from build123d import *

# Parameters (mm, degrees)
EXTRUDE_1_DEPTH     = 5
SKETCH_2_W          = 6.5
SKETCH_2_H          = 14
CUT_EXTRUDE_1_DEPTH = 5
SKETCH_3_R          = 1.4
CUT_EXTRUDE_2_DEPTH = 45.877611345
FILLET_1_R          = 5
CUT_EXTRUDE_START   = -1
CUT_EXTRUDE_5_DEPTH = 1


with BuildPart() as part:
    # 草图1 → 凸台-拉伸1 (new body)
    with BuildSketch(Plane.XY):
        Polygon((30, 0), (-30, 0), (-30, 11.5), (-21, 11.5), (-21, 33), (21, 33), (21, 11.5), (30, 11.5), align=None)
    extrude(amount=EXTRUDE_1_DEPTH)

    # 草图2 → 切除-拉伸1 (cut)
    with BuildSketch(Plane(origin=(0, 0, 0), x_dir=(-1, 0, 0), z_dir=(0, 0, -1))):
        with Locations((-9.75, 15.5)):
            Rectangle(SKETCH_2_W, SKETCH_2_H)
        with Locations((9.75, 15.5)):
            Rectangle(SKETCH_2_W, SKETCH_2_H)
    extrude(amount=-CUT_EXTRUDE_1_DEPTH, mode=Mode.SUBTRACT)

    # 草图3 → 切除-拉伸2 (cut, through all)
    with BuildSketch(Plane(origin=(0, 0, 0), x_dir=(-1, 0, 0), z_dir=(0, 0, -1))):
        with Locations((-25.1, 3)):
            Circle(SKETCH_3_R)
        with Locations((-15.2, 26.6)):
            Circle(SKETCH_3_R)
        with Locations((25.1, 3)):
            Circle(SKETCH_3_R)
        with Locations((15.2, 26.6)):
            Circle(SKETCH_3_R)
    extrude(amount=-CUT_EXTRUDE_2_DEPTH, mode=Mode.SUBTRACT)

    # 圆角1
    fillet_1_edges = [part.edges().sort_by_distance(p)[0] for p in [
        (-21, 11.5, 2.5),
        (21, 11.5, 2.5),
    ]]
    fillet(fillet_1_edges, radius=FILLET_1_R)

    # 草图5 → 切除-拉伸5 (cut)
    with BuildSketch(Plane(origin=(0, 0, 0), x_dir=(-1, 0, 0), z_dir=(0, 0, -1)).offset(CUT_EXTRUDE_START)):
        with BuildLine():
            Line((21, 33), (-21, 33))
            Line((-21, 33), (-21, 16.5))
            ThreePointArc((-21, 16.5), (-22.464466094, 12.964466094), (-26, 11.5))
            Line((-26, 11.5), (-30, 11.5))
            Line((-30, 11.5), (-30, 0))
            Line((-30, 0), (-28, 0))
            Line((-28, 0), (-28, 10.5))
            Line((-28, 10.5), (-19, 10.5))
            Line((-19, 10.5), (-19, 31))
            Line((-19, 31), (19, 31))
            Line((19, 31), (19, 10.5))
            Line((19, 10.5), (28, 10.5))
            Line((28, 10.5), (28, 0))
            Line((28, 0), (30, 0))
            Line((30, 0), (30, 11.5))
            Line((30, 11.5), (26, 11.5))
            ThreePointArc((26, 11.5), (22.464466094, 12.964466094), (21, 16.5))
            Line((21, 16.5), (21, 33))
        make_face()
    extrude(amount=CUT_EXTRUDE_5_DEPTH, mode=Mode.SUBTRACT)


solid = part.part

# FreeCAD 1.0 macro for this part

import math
import FreeCAD as App
import Part
import Sketcher
from FreeCAD import Vector


def edges_at(feature, points):
    """Names of the edges that pass closest to the given points."""
    edges = feature.Shape.Edges
    near = lambda p: min(range(len(edges)), key=lambda i: edges[i].distToShape(Part.Vertex(*p))[0])
    return sorted({f"Edge{near(p) + 1}" for p in points})


def add_polygon(sketch, points):
    """Adds a closed chain of lines whose ends are joined by coincident constraints."""
    first, n = sketch.GeometryCount, len(points)
    for a, b in zip(points, points[1:] + points[:1]):
        sketch.addGeometry(Part.LineSegment(App.Vector(*a, 0), App.Vector(*b, 0)), False)
    for i in range(n):
        sketch.addConstraint(Sketcher.Constraint("Coincident", first + i, 2, first + (i + 1) % n, 1))

doc = App.newDocument("Part")
params = doc.addObject("Spreadsheet::Sheet", "Params")
for row, (alias, value) in enumerate([
    ("sketch1_width", "60 mm"),
    ("sketch1_width2", "9 mm"),
    ("sketch1_height", "11.5 mm"),
    ("sketch1_height2", "21.5 mm"),
    ("pad1_length", "5 mm"),
    ("sketch2_height", "14 mm"),
    ("sketch2_width", "6.5 mm"),
    ("pocket1_length", "5 mm"),
    ("sketch3_diameter", "2.8 mm"),
    ("fillet_radius", "5 mm"),
    ("sketch4_radius", "5 mm"),
    ("sketch4_width", "42 mm"),
    ("sketch4_width2", "4 mm"),
    ("sketch4_width3", "2 mm"),
    ("sketch4_width4", "9 mm"),
    ("pocket3_length", "1 mm"),
], start=1):
    params.set(f"A{row}", alias)
    params.set(f"B{row}", "=" + value)
    params.setAlias(f"B{row}", alias)

body = doc.addObject("PartDesign::Body", "Body")

sketch1 = body.newObject("Sketcher::SketchObject", "Sketch")
sketch1.AttachmentSupport = (doc.getObject("XY_Plane"), [""])
sketch1.MapMode = "FlatFace"
add_polygon(sketch1, [(-30, 0), (30, 0), (30, 12), (21, 12), (21, 33), (-21, 33), (-21, 12), (-30, 12)])
sketch1.addConstraint([
    Sketcher.Constraint("Horizontal", 0),
    Sketcher.Constraint("Vertical", 1),
    Sketcher.Constraint("Horizontal", 2),
    Sketcher.Constraint("Vertical", 3),
    Sketcher.Constraint("Horizontal", 4),
    Sketcher.Constraint("Vertical", 5),
    Sketcher.Constraint("Horizontal", 6),
    Sketcher.Constraint("Vertical", 7),
    Sketcher.Constraint("Symmetric", 0, 2, 7, 2, -1, 1),
    Sketcher.Constraint("Symmetric", 2, 2, 5, 2, -2),
    Sketcher.Constraint("DistanceX", 0, 1, 0, 2, 60.0),
    Sketcher.Constraint("DistanceX", 2, 2, 2, 1, 9.0),
    Sketcher.Constraint("DistanceY", 1, 1, 1, 2, 11.5),
    Sketcher.Constraint("DistanceY", 3, 1, 3, 2, 21.5),
])
sketch1.setExpression("Constraints[18]", "Params.sketch1_width")
sketch1.setExpression("Constraints[19]", "Params.sketch1_width2")
sketch1.setExpression("Constraints[20]", "Params.sketch1_height")
sketch1.setExpression("Constraints[21]", "Params.sketch1_height2")
pad1 = body.newObject("PartDesign::Pad", "Pad")
pad1.Profile = sketch1
pad1.setExpression("Length", "Params.pad1_length")

sketch2 = body.newObject("Sketcher::SketchObject", "Sketch001")
sketch2.AttachmentSupport = (doc.getObject("XY_Plane"), [""])
sketch2.MapMode = "FlatFace"
add_polygon(sketch2, [(13, 22), (13, 8), (6, 8), (6, 22)])
add_polygon(sketch2, [(-6, 22), (-6, 8), (-13, 8), (-13, 22)])
sketch2.addConstraint([
    Sketcher.Constraint("Vertical", 0),
    Sketcher.Constraint("Horizontal", 1),
    Sketcher.Constraint("Vertical", 2),
    Sketcher.Constraint("Horizontal", 3),
    Sketcher.Constraint("Vertical", 4),
    Sketcher.Constraint("Horizontal", 5),
    Sketcher.Constraint("Vertical", 6),
    Sketcher.Constraint("Horizontal", 7),
    Sketcher.Constraint("Symmetric", 1, 2, 4, 2, -2),
    Sketcher.Constraint("Symmetric", 3, 2, 6, 2, -2),
    Sketcher.Constraint("DistanceY", 0, 2, 0, 1, 14.0),
    Sketcher.Constraint("DistanceX", 1, 2, 1, 1, 6.5),
    Sketcher.Constraint("DistanceX", -1, 1, 0, 2, 13.0),
    Sketcher.Constraint("DistanceY", -1, 1, 0, 2, 8.5),
])
sketch2.setExpression("Constraints[18]", "Params.sketch2_height")
sketch2.setExpression("Constraints[19]", "Params.sketch2_width")
pocket1 = body.newObject("PartDesign::Pocket", "Pocket")
pocket1.Profile = sketch2
pocket1.setExpression("Length", "Params.pocket1_length")
pocket1.Reversed = True

sketch3 = body.newObject("Sketcher::SketchObject", "Sketch002")
sketch3.AttachmentSupport = (doc.getObject("XY_Plane"), [""])
sketch3.MapMode = "FlatFace"
sketch3.addGeometry([
    Part.Circle(Vector(25.1, 3, 0), Vector(0, 0, 1), 1.4),
    Part.Circle(Vector(15.2, 26.6, 0), Vector(0, 0, 1), 1.4),
    Part.Circle(Vector(-25.1, 3, 0), Vector(0, 0, 1), 1.4),
    Part.Circle(Vector(-15.2, 26.6, 0), Vector(0, 0, 1), 1.4),
], False)
sketch3.addConstraint([
    Sketcher.Constraint("Equal", 0, 1),
    Sketcher.Constraint("Equal", 1, 2),
    Sketcher.Constraint("Equal", 2, 3),
    Sketcher.Constraint("Symmetric", 0, 3, 2, 3, -2),
    Sketcher.Constraint("Symmetric", 1, 3, 3, 3, -2),
    Sketcher.Constraint("Diameter", 0, 2.8),
    Sketcher.Constraint("DistanceY", -1, 1, 0, 3, 3.0),
    Sketcher.Constraint("DistanceX", -1, 1, 0, 3, 25.1),
    Sketcher.Constraint("DistanceX", -1, 1, 1, 3, 15.2),
    Sketcher.Constraint("DistanceY", -1, 1, 1, 3, 26.6),
])
sketch3.setExpression("Constraints[5]", "Params.sketch3_diameter")
pocket2 = body.newObject("PartDesign::Pocket", "Pocket001")
pocket2.Profile = sketch3
pocket2.Type = "ThroughAll"
pocket2.Reversed = True
doc.recompute()

fillet = body.newObject("PartDesign::Fillet", "Fillet")
fillet.Base = (pocket2, edges_at(pocket2, [(-21, 11.5, 2.5), (21, 11.5, 2.5)]))
fillet.setExpression("Radius", "Params.fillet_radius")

sketch4 = body.newObject("Sketcher::SketchObject", "Sketch003")
sketch4.AttachmentSupport = (doc.getObject("XY_Plane"), [""])
sketch4.MapMode = "FlatFace"
sketch4.AttachmentOffset = App.Placement(Vector(0, 0, 1), App.Rotation())
sketch4.addGeometry([
    Part.LineSegment(Vector(-21, 33, 0), Vector(21, 33, 0)),
    Part.LineSegment(Vector(21, 33, 0), Vector(21, 16.5, 0)),
    Part.ArcOfCircle(Part.Circle(Vector(26, 16.5, 0), Vector(0, 0, 1), 5), math.radians(180), math.radians(270)),
    Part.LineSegment(Vector(26, 11.5, 0), Vector(30, 11.5, 0)),
    Part.LineSegment(Vector(30, 11.5, 0), Vector(30, 0, 0)),
    Part.LineSegment(Vector(30, 0, 0), Vector(28, 0, 0)),
    Part.LineSegment(Vector(28, 0, 0), Vector(28, 10.5, 0)),
    Part.LineSegment(Vector(28, 10.5, 0), Vector(19, 10.5, 0)),
    Part.LineSegment(Vector(19, 10.5, 0), Vector(19, 31, 0)),
    Part.LineSegment(Vector(19, 31, 0), Vector(-19, 31, 0)),
    Part.LineSegment(Vector(-19, 31, 0), Vector(-19, 10.5, 0)),
    Part.LineSegment(Vector(-19, 10.5, 0), Vector(-28, 10.5, 0)),
    Part.LineSegment(Vector(-28, 10.5, 0), Vector(-28, 0, 0)),
    Part.LineSegment(Vector(-28, 0, 0), Vector(-30, 0, 0)),
    Part.LineSegment(Vector(-30, 0, 0), Vector(-30, 11.5, 0)),
    Part.LineSegment(Vector(-30, 11.5, 0), Vector(-26, 11.5, 0)),
    Part.ArcOfCircle(Part.Circle(Vector(-26, 16.5, 0), Vector(0, 0, 1), 5), math.radians(-90), math.radians(0)),
    Part.LineSegment(Vector(-21, 16.5, 0), Vector(-21, 33, 0)),
], False)
sketch4.addConstraint([
    Sketcher.Constraint("Coincident", 0, 2, 1, 1),
    Sketcher.Constraint("Tangent", 1, 2, 2, 1),
    Sketcher.Constraint("Tangent", 2, 2, 3, 1),
    Sketcher.Constraint("Coincident", 3, 2, 4, 1),
    Sketcher.Constraint("Coincident", 4, 2, 5, 1),
    Sketcher.Constraint("Coincident", 5, 2, 6, 1),
    Sketcher.Constraint("Coincident", 6, 2, 7, 1),
    Sketcher.Constraint("Coincident", 7, 2, 8, 1),
    Sketcher.Constraint("Coincident", 8, 2, 9, 1),
    Sketcher.Constraint("Coincident", 9, 2, 10, 1),
    Sketcher.Constraint("Coincident", 10, 2, 11, 1),
    Sketcher.Constraint("Coincident", 11, 2, 12, 1),
    Sketcher.Constraint("Coincident", 12, 2, 13, 1),
    Sketcher.Constraint("Coincident", 13, 2, 14, 1),
    Sketcher.Constraint("Coincident", 14, 2, 15, 1),
    Sketcher.Constraint("Tangent", 15, 2, 16, 1),
    Sketcher.Constraint("Tangent", 16, 2, 17, 1),
    Sketcher.Constraint("Coincident", 17, 2, 0, 1),
    Sketcher.Constraint("Horizontal", 0),
    Sketcher.Constraint("Vertical", 1),
    Sketcher.Constraint("Horizontal", 3),
    Sketcher.Constraint("Vertical", 4),
    Sketcher.Constraint("Horizontal", 5),
    Sketcher.Constraint("Vertical", 6),
    Sketcher.Constraint("Horizontal", 7),
    Sketcher.Constraint("Vertical", 8),
    Sketcher.Constraint("Horizontal", 9),
    Sketcher.Constraint("Vertical", 10),
    Sketcher.Constraint("Horizontal", 11),
    Sketcher.Constraint("Vertical", 12),
    Sketcher.Constraint("Horizontal", 13),
    Sketcher.Constraint("Vertical", 14),
    Sketcher.Constraint("Horizontal", 15),
    Sketcher.Constraint("Vertical", 17),
    Sketcher.Constraint("Equal", 2, 16),
    Sketcher.Constraint("Symmetric", 5, 2, 12, 2, -1, 1),
    Sketcher.Constraint("Symmetric", 2, 3, 16, 3, -2),
    Sketcher.Constraint("Symmetric", 7, 2, 10, 2, -2),
    Sketcher.Constraint("Symmetric", 4, 2, 13, 2, -2),
    Sketcher.Constraint("Radius", 2, 5.0),
    Sketcher.Constraint("DistanceX", 0, 1, 0, 2, 42.0),
    Sketcher.Constraint("DistanceX", 3, 1, 3, 2, 4.0),
    Sketcher.Constraint("DistanceX", 5, 2, 5, 1, 2.0),
    Sketcher.Constraint("DistanceX", 7, 2, 7, 1, 9.0),
    Sketcher.Constraint("DistanceY", 1, 2, 1, 1, 16.5),
    Sketcher.Constraint("DistanceY", 4, 2, 4, 1, 11.5),
    Sketcher.Constraint("DistanceY", 6, 1, 6, 2, 10.5),
    Sketcher.Constraint("DistanceY", 8, 1, 8, 2, 20.5),
])
sketch4.setExpression("Constraints[39]", "Params.sketch4_radius")
sketch4.setExpression("Constraints[40]", "Params.sketch4_width")
sketch4.setExpression("Constraints[41]", "Params.sketch4_width2")
sketch4.setExpression("Constraints[42]", "Params.sketch4_width3")
sketch4.setExpression("Constraints[43]", "Params.sketch4_width4")
pocket3 = body.newObject("PartDesign::Pocket", "Pocket002")
pocket3.Profile = sketch4
pocket3.setExpression("Length", "Params.pocket3_length")

doc.recompute()
